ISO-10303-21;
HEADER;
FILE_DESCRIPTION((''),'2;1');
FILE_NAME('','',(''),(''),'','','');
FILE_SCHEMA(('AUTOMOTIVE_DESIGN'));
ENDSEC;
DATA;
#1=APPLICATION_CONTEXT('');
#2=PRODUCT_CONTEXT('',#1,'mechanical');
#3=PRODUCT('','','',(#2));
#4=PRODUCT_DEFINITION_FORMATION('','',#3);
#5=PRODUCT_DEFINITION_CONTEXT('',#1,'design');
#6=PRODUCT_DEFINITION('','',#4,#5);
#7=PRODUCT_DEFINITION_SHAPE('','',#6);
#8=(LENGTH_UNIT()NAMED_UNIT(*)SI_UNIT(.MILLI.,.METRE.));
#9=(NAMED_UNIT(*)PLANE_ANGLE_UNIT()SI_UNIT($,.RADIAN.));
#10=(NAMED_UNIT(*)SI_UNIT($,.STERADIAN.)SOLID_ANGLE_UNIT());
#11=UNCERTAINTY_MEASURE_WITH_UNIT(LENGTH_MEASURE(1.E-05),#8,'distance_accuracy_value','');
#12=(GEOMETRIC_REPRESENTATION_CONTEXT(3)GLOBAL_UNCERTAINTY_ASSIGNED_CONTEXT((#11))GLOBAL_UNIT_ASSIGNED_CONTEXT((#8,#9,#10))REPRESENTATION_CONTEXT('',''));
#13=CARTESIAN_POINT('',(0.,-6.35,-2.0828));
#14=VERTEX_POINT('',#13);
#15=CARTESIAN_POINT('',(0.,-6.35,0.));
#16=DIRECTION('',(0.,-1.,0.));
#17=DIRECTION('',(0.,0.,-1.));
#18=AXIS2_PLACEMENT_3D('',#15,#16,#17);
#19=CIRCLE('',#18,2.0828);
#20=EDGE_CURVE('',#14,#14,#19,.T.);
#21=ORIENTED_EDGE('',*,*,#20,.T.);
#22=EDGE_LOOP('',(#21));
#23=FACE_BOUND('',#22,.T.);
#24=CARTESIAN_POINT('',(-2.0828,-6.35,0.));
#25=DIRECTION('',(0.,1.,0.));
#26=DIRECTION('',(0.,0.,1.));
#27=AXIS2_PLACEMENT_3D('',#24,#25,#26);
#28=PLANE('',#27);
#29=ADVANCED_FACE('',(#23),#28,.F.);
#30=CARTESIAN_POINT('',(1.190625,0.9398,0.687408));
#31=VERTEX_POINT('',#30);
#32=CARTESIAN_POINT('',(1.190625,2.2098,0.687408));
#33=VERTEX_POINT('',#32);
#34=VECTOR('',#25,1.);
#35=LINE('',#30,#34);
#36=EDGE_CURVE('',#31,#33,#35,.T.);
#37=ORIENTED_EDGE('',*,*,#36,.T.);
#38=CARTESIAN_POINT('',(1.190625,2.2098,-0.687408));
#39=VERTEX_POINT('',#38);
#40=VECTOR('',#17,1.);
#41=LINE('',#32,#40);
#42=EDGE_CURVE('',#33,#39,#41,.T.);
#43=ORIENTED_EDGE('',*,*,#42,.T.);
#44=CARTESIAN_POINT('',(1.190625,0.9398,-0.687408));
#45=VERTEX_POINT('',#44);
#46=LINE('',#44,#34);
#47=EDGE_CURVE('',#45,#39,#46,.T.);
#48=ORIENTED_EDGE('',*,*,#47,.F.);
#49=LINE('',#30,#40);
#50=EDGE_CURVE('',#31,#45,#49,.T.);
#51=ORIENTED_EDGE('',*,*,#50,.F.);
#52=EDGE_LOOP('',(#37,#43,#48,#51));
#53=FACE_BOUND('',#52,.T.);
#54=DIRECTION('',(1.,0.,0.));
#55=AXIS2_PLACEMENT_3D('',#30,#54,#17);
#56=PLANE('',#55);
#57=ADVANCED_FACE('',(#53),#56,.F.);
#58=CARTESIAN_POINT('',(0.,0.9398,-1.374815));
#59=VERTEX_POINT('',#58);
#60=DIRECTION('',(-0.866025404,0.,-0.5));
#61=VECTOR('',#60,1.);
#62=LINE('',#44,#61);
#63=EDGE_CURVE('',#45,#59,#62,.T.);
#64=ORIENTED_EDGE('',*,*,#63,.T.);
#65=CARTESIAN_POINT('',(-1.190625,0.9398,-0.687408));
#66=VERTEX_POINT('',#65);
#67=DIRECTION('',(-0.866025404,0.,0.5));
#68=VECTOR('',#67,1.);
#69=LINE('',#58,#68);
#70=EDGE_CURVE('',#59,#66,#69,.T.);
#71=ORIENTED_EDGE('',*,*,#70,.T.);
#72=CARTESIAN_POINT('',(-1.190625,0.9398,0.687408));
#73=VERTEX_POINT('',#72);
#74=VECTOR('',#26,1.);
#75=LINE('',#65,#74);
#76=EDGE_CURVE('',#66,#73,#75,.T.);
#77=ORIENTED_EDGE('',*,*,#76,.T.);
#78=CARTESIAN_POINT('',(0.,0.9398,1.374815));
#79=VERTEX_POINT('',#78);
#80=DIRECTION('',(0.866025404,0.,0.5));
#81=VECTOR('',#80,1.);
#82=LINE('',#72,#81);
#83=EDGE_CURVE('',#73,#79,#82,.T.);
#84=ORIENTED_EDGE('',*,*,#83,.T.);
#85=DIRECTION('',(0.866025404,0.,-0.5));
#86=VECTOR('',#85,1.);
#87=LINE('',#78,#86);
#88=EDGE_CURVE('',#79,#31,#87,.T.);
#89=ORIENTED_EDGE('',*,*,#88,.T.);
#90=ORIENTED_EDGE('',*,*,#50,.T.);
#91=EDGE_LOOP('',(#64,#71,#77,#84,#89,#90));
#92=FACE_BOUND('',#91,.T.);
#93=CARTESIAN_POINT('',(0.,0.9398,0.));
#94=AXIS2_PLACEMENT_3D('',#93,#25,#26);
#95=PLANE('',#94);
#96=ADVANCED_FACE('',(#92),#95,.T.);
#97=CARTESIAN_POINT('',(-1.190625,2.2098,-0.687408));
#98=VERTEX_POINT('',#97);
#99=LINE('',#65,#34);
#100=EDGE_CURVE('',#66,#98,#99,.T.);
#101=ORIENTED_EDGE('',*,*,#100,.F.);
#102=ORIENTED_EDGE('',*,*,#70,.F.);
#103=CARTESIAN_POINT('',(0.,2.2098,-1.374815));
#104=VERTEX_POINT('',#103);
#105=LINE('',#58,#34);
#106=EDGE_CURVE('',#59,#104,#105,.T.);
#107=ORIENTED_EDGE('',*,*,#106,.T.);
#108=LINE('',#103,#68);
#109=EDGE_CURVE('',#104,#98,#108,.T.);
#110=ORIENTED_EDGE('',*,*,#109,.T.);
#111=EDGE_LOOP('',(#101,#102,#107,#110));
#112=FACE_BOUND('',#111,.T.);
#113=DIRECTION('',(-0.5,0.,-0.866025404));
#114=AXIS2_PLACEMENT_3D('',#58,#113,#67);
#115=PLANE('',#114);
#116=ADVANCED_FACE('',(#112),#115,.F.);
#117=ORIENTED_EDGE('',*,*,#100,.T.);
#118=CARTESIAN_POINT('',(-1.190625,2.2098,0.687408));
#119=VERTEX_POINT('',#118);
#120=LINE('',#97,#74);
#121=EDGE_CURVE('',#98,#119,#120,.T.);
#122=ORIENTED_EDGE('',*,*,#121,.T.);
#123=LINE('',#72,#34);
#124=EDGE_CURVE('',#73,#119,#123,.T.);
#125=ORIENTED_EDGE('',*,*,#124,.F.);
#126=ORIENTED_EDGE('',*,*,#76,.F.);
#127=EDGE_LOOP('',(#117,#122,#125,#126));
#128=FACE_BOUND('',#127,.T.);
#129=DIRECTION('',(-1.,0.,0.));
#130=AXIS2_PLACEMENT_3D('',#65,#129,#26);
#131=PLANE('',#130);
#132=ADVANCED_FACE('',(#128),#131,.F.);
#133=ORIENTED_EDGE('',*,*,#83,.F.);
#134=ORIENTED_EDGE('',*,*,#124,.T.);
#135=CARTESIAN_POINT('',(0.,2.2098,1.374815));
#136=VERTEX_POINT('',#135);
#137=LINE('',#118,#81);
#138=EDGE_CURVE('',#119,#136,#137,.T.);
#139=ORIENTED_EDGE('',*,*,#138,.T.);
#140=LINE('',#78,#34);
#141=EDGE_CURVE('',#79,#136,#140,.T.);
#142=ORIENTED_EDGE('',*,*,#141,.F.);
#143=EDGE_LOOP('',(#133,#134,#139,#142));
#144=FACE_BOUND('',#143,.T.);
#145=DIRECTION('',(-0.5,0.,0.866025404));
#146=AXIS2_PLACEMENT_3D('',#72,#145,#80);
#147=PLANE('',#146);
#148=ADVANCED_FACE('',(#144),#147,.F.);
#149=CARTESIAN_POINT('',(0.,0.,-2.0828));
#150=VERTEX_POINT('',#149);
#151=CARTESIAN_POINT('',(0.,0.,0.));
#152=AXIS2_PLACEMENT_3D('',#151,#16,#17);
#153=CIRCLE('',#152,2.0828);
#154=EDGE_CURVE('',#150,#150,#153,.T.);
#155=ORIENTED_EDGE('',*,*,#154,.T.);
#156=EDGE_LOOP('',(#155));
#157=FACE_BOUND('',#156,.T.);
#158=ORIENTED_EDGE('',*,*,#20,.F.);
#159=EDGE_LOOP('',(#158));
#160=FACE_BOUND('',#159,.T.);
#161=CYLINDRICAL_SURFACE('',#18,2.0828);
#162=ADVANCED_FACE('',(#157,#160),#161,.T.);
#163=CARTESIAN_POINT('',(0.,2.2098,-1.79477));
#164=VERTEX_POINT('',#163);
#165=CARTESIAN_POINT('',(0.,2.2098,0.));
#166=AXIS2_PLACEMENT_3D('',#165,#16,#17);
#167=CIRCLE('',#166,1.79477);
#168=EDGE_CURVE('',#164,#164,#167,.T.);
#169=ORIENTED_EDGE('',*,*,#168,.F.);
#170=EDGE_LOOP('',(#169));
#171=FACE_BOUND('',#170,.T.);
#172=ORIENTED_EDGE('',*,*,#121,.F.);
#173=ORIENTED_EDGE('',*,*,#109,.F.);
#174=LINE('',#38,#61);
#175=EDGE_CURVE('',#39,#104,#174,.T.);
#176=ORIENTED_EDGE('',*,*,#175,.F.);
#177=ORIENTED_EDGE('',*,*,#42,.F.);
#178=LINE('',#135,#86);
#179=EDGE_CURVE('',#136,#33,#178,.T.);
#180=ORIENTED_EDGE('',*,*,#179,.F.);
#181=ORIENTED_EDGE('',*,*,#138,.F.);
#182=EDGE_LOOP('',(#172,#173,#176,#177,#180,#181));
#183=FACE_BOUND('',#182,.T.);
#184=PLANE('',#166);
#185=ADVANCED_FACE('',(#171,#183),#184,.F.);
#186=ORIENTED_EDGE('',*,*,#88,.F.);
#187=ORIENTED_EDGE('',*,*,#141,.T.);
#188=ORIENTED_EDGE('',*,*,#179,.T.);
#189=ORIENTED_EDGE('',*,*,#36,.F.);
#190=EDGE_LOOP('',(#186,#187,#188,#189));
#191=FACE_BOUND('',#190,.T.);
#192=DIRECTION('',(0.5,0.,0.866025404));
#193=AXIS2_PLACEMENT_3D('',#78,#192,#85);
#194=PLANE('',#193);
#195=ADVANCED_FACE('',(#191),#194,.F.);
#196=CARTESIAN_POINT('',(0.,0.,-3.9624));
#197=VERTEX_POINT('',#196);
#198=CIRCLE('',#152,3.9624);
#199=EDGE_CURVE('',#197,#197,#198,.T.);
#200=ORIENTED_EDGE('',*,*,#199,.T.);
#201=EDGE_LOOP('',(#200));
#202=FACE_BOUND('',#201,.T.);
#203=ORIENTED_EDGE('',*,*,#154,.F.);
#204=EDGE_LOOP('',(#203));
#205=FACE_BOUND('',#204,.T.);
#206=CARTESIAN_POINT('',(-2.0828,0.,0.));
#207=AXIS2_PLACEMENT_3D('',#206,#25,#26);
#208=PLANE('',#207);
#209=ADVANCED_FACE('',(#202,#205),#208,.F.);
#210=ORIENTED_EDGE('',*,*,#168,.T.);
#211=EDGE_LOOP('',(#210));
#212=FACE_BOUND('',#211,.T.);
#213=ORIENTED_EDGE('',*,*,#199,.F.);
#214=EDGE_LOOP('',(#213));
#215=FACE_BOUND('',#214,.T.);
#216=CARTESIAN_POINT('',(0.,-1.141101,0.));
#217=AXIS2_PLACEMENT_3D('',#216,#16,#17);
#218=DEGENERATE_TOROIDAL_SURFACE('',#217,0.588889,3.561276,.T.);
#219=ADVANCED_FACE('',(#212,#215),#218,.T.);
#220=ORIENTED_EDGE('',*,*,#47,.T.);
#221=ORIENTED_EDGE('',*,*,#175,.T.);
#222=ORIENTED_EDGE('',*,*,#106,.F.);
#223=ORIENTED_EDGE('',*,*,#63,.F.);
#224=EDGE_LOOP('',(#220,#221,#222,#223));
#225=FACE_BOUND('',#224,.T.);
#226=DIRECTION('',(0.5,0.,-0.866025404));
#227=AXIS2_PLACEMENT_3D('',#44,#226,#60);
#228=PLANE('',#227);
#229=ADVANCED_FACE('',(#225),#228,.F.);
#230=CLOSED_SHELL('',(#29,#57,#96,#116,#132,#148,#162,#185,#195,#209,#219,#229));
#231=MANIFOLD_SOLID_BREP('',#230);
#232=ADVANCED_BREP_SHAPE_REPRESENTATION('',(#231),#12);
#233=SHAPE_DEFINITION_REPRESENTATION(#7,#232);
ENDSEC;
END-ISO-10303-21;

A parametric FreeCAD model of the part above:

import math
import FreeCAD as App
import Part
import Sketcher
from FreeCAD import Vector
Q = App.Units.Quantity

doc = App.newDocument("Part")
params = doc.addObject("Spreadsheet::Sheet", "Params")
for row, (alias, value) in enumerate([
    ("sketch1_height", "0.25 in"),
    ("sketch1_width", "0.074 in"),
    ("sketch1_width2", "0.082 in"),
    ("sketch1_height2", "0.337 in"),
    ("revolution_angle", "360 deg"),
    ("pocket1_length", "0.05 in"),
], start=1):
    params.set(f"A{row}", alias)
    params.set(f"B{row}", "=" + value)
    params.setAlias(f"B{row}", alias)

body = doc.addObject("PartDesign::Body", "Body")

# Sketch on XY plane
sketch1 = body.newObject("Sketcher::SketchObject", "Sketch")
sketch1.AttachmentSupport = (doc.getObject("XY_Plane"), [""])
sketch1.MapMode = "FlatFace"
sketch1.addGeometry([
    Part.LineSegment(Vector(-3.9624, 0, 0), Vector(-2.0828, 0, 0)),  # 0
    Part.LineSegment(Vector(-2.0828, 0, 0), Vector(-2.0828, -6.35, 0)),  # 1
    Part.LineSegment(Vector(-2.0828, -6.35, 0), Vector(0, -6.35, 0)),  # 2
    Part.LineSegment(Vector(0, -6.35, 0), Vector(0, 2.2098, 0)),  # 3
    Part.LineSegment(Vector(0, 2.2098, 0), Vector(-1.79477, 2.2098, 0)),  # 4
    Part.ArcOfCircle(Part.Circle(Vector(-0.588889, -1.141101, 0), Vector(0, 0, 1), 3.561276), math.radians(109.792161), math.radians(161.311724)),  # 5
], False)
sketch1.addConstraint([
    Sketcher.Constraint("Coincident", 0, 2, 1, 1),
    Sketcher.Constraint("Coincident", 1, 2, 2, 1),
    Sketcher.Constraint("Coincident", 2, 2, 3, 1),
    Sketcher.Constraint("Coincident", 3, 2, 4, 1),
    Sketcher.Constraint("Coincident", 4, 2, 5, 1),
    Sketcher.Constraint("Coincident", 5, 2, 0, 1),
    Sketcher.Constraint("Horizontal", 0),
    Sketcher.Constraint("Vertical", 1),
    Sketcher.Constraint("Horizontal", 2),
    Sketcher.Constraint("Vertical", 3),
    Sketcher.Constraint("Horizontal", 4),
    Sketcher.Constraint("PointOnObject", 0, 2, -1),
    Sketcher.Constraint("PointOnObject", 2, 2, -2),
    Sketcher.Constraint("DistanceY", 1, 2, 1, 1, Q("0.25 in")),
    Sketcher.Constraint("DistanceX", 0, 1, 0, 2, Q("0.074 in")),
    Sketcher.Constraint("DistanceX", 2, 1, 2, 2, Q("0.082 in")),
    Sketcher.Constraint("DistanceY", 3, 1, 3, 2, Q("0.337 in")),
    Sketcher.Constraint("Radius", 5, Q("3.561276 mm")),
    Sketcher.Constraint("DistanceX", 4, 2, 4, 1, Q("1.79477 mm")),
])
sketch1.setExpression("Constraints[13]", "Params.sketch1_height")
sketch1.setExpression("Constraints[14]", "Params.sketch1_width")
sketch1.setExpression("Constraints[15]", "Params.sketch1_width2")
sketch1.setExpression("Constraints[16]", "Params.sketch1_height2")
revolution = body.newObject("PartDesign::Revolution", "Revolution")
revolution.Profile = sketch1
revolution.ReferenceAxis = (sketch1, ["V_Axis"])
revolution.setExpression("Angle", "Params.revolution_angle")

# Sketch on XZ plane
sketch2 = body.newObject("Sketcher::SketchObject", "Sketch001")
sketch2.AttachmentSupport = (doc.getObject("XZ_Plane"), [""])
sketch2.MapMode = "FlatFace"
sketch2.AttachmentOffset = App.Placement(Vector(0, 0, -0.087 * 25.4), App.Rotation())
sketch2.addGeometry([
    Part.LineSegment(Vector(-1.190625, -0.687408, 0), Vector(-1.190625, 0.687408, 0)),  # 0
    Part.LineSegment(Vector(-1.190625, 0.687408, 0), Vector(0, 1.374815, 0)),  # 1
    Part.LineSegment(Vector(0, 1.374815, 0), Vector(1.190625, 0.687408, 0)),  # 2
    Part.LineSegment(Vector(1.190625, 0.687408, 0), Vector(1.190625, -0.687408, 0)),  # 3
    Part.LineSegment(Vector(1.190625, -0.687408, 0), Vector(0, -1.374815, 0)),  # 4
    Part.LineSegment(Vector(0, -1.374815, 0), Vector(-1.190625, -0.687408, 0)),  # 5
], False)
sketch2.addConstraint([
    Sketcher.Constraint("Coincident", 0, 2, 1, 1),
    Sketcher.Constraint("Coincident", 1, 2, 2, 1),
    Sketcher.Constraint("Coincident", 2, 2, 3, 1),
    Sketcher.Constraint("Coincident", 3, 2, 4, 1),
    Sketcher.Constraint("Coincident", 4, 2, 5, 1),
    Sketcher.Constraint("Coincident", 5, 2, 0, 1),
    Sketcher.Constraint("Vertical", 0),
    Sketcher.Constraint("Vertical", 3),
    Sketcher.Constraint("Symmetric", 0, 2, 3, 2, -1, 1),
    Sketcher.Constraint("Symmetric", 1, 2, 4, 2, -1, 1),
    Sketcher.Constraint("PointOnObject", 1, 2, -2),
    Sketcher.Constraint("Parallel", 2, 5),
    Sketcher.Constraint("Horizontal", 0, 2, 2, 2),
    Sketcher.Constraint("Angle", 1, Q("30 deg")),
    Sketcher.Constraint("DistanceX", 0, 2, -1, 1, Q("0.046875 in")),
    Sketcher.Constraint("DistanceY", 0, 1, 0, 2, Q("1.374815 mm")),
])
pocket1 = body.newObject("PartDesign::Pocket", "Pocket")
pocket1.Profile = sketch2
pocket1.setExpression("Length", "Params.pocket1_length")
pocket1.Reversed = True

doc.recompute()
